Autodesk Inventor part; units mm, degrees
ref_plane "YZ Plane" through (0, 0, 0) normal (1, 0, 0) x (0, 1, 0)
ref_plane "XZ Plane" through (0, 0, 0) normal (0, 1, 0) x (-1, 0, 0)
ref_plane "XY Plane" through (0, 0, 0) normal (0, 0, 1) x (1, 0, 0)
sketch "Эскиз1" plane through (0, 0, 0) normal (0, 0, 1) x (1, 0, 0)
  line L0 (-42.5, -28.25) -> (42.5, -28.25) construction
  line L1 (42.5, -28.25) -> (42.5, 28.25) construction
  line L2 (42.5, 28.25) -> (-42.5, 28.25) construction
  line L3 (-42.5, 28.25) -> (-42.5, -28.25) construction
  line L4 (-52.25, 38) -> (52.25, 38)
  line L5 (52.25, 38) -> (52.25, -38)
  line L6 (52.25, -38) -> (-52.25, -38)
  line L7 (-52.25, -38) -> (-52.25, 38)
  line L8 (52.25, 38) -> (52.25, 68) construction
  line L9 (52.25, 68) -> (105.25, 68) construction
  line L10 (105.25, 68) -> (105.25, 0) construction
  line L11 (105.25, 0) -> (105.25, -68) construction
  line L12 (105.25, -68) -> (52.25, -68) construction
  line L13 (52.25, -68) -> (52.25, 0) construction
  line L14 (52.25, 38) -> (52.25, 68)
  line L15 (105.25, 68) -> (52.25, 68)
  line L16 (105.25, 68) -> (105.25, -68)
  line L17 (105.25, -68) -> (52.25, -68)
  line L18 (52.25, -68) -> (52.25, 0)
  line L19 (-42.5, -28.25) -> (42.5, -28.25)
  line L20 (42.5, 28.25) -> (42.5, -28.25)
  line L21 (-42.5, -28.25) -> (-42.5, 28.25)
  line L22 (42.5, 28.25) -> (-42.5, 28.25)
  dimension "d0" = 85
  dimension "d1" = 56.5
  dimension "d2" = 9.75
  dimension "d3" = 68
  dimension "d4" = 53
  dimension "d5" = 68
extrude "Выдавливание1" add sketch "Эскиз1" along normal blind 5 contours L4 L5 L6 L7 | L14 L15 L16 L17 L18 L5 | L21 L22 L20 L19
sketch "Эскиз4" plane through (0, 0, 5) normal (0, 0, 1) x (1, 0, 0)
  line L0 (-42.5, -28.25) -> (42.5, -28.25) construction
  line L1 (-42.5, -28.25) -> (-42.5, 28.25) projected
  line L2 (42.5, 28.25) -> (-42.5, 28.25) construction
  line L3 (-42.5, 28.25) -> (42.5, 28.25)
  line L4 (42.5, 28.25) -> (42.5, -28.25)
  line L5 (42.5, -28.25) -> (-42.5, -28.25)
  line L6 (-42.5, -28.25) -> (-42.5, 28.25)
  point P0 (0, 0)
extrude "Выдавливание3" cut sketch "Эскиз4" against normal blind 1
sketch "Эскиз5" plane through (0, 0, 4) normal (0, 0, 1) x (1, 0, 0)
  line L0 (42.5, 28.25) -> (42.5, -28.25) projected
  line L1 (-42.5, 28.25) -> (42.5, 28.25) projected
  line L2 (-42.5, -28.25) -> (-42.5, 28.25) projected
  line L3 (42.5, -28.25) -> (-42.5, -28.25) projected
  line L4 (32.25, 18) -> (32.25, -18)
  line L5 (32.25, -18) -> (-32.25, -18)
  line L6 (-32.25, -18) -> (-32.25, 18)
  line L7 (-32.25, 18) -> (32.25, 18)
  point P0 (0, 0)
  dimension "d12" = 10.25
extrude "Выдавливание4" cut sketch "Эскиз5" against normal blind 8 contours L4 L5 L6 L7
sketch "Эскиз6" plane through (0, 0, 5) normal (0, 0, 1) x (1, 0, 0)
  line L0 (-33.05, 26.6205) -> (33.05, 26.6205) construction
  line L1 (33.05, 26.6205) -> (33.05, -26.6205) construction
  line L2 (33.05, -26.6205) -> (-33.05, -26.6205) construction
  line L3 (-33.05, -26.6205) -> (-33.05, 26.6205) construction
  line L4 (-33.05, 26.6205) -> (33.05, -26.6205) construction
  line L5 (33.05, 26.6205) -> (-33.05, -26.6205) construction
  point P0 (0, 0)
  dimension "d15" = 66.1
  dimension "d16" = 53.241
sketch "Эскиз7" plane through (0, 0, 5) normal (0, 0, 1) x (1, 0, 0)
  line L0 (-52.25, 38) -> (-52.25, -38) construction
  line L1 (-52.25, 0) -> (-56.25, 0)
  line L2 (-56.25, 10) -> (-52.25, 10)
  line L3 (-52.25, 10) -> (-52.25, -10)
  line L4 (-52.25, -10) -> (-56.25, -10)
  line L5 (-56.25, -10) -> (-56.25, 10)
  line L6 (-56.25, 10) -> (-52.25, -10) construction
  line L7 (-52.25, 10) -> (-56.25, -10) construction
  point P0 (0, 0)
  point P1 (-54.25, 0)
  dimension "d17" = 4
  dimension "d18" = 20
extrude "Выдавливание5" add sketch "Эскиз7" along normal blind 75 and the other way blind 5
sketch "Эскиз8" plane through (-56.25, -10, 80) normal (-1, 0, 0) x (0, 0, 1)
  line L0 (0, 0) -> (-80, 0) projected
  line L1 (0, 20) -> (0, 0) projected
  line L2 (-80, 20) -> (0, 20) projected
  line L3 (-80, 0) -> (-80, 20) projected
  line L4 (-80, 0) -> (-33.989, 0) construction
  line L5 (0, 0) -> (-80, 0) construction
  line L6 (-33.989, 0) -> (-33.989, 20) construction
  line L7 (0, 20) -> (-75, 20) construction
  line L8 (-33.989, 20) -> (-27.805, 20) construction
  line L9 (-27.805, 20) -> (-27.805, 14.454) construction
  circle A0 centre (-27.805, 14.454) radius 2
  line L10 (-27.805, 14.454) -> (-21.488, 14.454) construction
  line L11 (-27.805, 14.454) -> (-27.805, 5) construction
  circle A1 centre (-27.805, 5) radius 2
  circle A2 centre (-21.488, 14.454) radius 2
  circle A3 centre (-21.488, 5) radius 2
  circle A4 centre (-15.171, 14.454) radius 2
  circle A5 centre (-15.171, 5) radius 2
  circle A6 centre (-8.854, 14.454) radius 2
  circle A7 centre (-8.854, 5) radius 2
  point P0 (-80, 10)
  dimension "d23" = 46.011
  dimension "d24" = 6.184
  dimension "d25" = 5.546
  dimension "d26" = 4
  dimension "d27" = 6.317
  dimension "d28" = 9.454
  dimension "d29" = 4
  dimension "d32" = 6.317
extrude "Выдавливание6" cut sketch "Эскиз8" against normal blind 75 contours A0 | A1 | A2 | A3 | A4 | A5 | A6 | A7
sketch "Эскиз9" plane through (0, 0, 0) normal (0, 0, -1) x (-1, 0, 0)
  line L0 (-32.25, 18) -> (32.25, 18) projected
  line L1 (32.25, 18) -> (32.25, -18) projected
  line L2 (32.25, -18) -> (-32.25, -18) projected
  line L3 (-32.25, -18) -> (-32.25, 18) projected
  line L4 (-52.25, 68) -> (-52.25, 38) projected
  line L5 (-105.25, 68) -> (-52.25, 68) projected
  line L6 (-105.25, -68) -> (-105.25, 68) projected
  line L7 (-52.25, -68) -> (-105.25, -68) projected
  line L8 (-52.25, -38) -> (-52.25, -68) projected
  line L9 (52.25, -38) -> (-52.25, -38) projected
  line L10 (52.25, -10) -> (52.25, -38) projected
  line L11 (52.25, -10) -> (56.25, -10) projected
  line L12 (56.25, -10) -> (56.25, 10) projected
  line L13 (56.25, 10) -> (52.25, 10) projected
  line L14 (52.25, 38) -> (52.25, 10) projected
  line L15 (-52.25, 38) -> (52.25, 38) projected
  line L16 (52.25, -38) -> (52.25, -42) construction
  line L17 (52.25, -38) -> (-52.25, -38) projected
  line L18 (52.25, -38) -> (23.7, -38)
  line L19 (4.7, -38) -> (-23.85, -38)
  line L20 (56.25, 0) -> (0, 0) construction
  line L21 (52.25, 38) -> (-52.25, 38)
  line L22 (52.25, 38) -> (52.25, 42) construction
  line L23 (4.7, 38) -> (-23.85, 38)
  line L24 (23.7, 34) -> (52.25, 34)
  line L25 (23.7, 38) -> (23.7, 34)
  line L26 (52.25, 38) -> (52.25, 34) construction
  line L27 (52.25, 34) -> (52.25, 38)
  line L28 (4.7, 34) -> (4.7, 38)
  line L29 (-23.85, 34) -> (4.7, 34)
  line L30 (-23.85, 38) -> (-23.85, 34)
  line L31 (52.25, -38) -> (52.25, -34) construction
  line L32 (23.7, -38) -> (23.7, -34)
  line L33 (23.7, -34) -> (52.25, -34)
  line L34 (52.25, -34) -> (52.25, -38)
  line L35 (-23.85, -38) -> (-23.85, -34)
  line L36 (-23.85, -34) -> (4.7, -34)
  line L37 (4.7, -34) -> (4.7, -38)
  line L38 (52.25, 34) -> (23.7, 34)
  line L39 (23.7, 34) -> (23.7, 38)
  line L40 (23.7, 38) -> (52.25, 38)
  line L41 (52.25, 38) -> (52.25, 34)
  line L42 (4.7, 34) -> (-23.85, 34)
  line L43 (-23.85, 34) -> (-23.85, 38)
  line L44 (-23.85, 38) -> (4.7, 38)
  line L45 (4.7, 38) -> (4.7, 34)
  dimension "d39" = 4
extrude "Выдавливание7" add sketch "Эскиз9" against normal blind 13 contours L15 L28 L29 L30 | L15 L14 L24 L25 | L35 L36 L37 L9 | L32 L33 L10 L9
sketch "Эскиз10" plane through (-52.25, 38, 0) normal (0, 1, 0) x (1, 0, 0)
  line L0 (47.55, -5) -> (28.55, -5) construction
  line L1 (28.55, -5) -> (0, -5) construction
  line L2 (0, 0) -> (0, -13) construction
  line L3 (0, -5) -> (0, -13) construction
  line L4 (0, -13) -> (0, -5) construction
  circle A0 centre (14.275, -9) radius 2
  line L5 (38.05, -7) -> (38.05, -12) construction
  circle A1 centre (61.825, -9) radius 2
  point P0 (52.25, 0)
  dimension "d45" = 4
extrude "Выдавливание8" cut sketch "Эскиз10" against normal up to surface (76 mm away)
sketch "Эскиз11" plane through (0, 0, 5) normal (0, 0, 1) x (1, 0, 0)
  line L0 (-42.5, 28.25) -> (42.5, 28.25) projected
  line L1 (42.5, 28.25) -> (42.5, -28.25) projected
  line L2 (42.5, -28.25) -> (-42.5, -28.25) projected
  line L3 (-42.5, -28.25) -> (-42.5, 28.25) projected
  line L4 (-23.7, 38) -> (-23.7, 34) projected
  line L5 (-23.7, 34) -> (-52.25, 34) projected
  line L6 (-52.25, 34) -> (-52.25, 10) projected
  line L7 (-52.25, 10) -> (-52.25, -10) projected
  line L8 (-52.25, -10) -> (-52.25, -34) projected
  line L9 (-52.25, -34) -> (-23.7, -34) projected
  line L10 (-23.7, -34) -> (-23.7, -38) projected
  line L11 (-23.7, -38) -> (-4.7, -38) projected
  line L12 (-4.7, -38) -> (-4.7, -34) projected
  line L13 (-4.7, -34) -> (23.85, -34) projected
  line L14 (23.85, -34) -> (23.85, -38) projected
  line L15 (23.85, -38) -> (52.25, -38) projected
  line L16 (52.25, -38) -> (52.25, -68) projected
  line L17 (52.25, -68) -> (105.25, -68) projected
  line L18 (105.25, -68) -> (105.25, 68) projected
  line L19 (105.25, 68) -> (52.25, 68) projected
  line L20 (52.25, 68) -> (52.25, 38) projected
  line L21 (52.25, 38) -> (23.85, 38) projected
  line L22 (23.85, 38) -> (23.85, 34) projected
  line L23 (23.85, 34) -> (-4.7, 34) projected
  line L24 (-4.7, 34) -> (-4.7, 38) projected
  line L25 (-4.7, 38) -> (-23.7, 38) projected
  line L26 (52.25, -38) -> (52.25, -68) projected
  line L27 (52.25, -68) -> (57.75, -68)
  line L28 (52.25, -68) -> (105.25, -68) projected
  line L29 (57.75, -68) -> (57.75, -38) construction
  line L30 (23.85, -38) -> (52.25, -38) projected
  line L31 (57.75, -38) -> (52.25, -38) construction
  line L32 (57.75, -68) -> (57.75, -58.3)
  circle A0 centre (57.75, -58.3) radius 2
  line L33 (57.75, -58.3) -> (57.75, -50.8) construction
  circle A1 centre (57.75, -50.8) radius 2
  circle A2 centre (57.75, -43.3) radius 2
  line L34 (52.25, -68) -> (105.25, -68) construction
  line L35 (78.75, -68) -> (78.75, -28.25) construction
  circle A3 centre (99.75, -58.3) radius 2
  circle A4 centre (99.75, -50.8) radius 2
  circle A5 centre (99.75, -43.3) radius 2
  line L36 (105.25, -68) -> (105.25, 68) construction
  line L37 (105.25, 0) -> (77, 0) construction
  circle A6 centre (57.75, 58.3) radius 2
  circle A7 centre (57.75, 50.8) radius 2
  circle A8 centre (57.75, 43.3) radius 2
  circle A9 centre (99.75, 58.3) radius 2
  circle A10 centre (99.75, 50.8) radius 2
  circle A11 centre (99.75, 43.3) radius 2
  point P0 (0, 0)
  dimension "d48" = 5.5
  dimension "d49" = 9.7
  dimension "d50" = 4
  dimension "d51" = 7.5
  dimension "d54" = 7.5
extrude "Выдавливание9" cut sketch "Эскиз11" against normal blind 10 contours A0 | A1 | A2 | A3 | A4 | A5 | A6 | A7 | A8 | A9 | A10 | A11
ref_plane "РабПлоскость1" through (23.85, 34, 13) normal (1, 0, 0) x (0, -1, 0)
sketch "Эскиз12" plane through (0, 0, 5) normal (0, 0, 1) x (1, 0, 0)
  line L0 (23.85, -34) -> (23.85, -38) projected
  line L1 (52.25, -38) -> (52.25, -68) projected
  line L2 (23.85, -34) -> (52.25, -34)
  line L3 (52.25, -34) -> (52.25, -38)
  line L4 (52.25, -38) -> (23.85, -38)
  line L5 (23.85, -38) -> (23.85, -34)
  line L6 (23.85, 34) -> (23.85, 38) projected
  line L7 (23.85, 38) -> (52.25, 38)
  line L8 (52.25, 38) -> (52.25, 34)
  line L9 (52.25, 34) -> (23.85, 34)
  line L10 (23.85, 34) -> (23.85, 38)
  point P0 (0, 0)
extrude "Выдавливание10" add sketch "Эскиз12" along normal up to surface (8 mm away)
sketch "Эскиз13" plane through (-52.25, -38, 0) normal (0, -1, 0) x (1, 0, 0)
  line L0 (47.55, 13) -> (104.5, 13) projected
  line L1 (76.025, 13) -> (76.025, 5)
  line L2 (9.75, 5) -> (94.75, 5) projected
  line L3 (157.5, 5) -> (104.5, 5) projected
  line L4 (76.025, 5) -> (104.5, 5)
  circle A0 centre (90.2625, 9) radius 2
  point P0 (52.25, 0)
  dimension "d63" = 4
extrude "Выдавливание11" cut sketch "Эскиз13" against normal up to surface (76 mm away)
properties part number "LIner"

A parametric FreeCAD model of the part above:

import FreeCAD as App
import Part
import Sketcher

doc = App.newDocument("Part")
body = doc.addObject("PartDesign::Body", "Body")

# Sketch on XY plane
sketch1 = doc.addObject("Sketcher::SketchObject", "Sketch")
body.addObject(sketch1)
sketch1.AttachmentSupport = (doc.XY_Plane, [""])
sketch1.MapMode = "FlatFace"
sketch1.addGeometry([
    Part.LineSegment(App.Vector(52, 38, 0), App.Vector(-52, 38, 0)),  # 0
    Part.LineSegment(App.Vector(-52, 38, 0), App.Vector(-52, -38, 0)),  # 1
    Part.LineSegment(App.Vector(-52, -38, 0), App.Vector(52, -38, 0)),  # 2
    Part.LineSegment(App.Vector(52, -38, 0), App.Vector(52, -68, 0)),  # 3
    Part.LineSegment(App.Vector(52, -68, 0), App.Vector(105, -68, 0)),  # 4
    Part.LineSegment(App.Vector(105, -68, 0), App.Vector(105, 68, 0)),  # 5
    Part.LineSegment(App.Vector(105, 68, 0), App.Vector(52, 68, 0)),  # 6
    Part.LineSegment(App.Vector(52, 68, 0), App.Vector(52, 38, 0)),  # 7
], False)
sketch1.addConstraint([
    Sketcher.Constraint("Coincident", 0, 2, 1, 1),
    Sketcher.Constraint("Coincident", 1, 2, 2, 1),
    Sketcher.Constraint("Coincident", 2, 2, 3, 1),
    Sketcher.Constraint("Coincident", 3, 2, 4, 1),
    Sketcher.Constraint("Coincident", 4, 2, 5, 1),
    Sketcher.Constraint("Coincident", 5, 2, 6, 1),
    Sketcher.Constraint("Coincident", 6, 2, 7, 1),
    Sketcher.Constraint("Coincident", 7, 2, 0, 1),
    Sketcher.Constraint("Horizontal", 0),
    Sketcher.Constraint("Vertical", 1),
    Sketcher.Constraint("Horizontal", 2),
    Sketcher.Constraint("Vertical", 3),
    Sketcher.Constraint("Horizontal", 4),
    Sketcher.Constraint("Vertical", 5),
    Sketcher.Constraint("Horizontal", 6),
    Sketcher.Constraint("Vertical", 7),
    Sketcher.Constraint("Symmetric", 0, 2, 2, 2, -1, 1),
    Sketcher.Constraint("Symmetric", 3, 2, 6, 2, -1),
    Sketcher.Constraint("DistanceX", 4, 1, 4, 2, 53.0),
    Sketcher.Constraint("DistanceY", 3, 2, -1, 1, 68.0),
    Sketcher.Constraint("DistanceY", 1, 2, 1, 1, 76.0),
    Sketcher.Constraint("DistanceX", 0, 2, 0, 1, 104.5),
])
pad1 = doc.addObject("PartDesign::Pad", "Pad")
body.addObject(pad1)
pad1.Profile = sketch1
pad1.Length = 5

# Sketch on XY plane
sketch2 = doc.addObject("Sketcher::SketchObject", "Sketch001")
body.addObject(sketch2)
sketch2.AttachmentSupport = (doc.XY_Plane, [""])
sketch2.MapMode = "FlatFace"
sketch2.AttachmentOffset = App.Placement(App.Vector(0, 0, 5), App.Rotation())
sketch2.addGeometry([
    Part.LineSegment(App.Vector(-42, 28, 0), App.Vector(-42, -28, 0)),
    Part.LineSegment(App.Vector(-42, -28, 0), App.Vector(42, -28, 0)),
    Part.LineSegment(App.Vector(42, -28, 0), App.Vector(42, 28, 0)),
    Part.LineSegment(App.Vector(42, 28, 0), App.Vector(-42, 28, 0)),
], False)
sketch2.addConstraint([
    Sketcher.Constraint("Coincident", 0, 2, 1, 1),
    Sketcher.Constraint("Coincident", 1, 2, 2, 1),
    Sketcher.Constraint("Coincident", 2, 2, 3, 1),
    Sketcher.Constraint("Coincident", 3, 2, 0, 1),
    Sketcher.Constraint("Vertical", 0),
    Sketcher.Constraint("Horizontal", 1),
    Sketcher.Constraint("Vertical", 2),
    Sketcher.Constraint("Horizontal", 3),
    Sketcher.Constraint("Symmetric", 0, 2, 2, 2, -1, 1),
    Sketcher.Constraint("DistanceX", 1, 1, 1, 2, 85.0),
    Sketcher.Constraint("DistanceY", 0, 2, 0, 1, 56.5),
])
pocket1 = doc.addObject("PartDesign::Pocket", "Pocket")
body.addObject(pocket1)
pocket1.Profile = sketch2
pocket1.Length = 1

# Sketch on XY plane
sketch3 = doc.addObject("Sketcher::SketchObject", "Sketch002")
body.addObject(sketch3)
sketch3.AttachmentSupport = (doc.XY_Plane, [""])
sketch3.MapMode = "FlatFace"
sketch3.AttachmentOffset = App.Placement(App.Vector(0, 0, 4), App.Rotation())
sketch3.addGeometry([
    Part.LineSegment(App.Vector(32, -18, 0), App.Vector(32, 18, 0)),
    Part.LineSegment(App.Vector(32, 18, 0), App.Vector(-32, 18, 0)),
    Part.LineSegment(App.Vector(-32, 18, 0), App.Vector(-32, -18, 0)),
    Part.LineSegment(App.Vector(-32, -18, 0), App.Vector(32, -18, 0)),
], False)
sketch3.addConstraint([
    Sketcher.Constraint("Coincident", 0, 2, 1, 1),
    Sketcher.Constraint("Coincident", 1, 2, 2, 1),
    Sketcher.Constraint("Coincident", 2, 2, 3, 1),
    Sketcher.Constraint("Coincident", 3, 2, 0, 1),
    Sketcher.Constraint("Vertical", 0),
    Sketcher.Constraint("Horizontal", 1),
    Sketcher.Constraint("Vertical", 2),
    Sketcher.Constraint("Horizontal", 3),
    Sketcher.Constraint("Symmetric", 0, 2, 2, 2, -1, 1),
    Sketcher.Constraint("DistanceY", 0, 1, 0, 2, 36.0),
    Sketcher.Constraint("DistanceX", 1, 2, 1, 1, 64.5),
])
pocket2 = doc.addObject("PartDesign::Pocket", "Pocket001")
body.addObject(pocket2)
pocket2.Profile = sketch3
pocket2.Length = 8

# Sketch on XY plane
sketch4 = doc.addObject("Sketcher::SketchObject", "Sketch003")
body.addObject(sketch4)
sketch4.AttachmentSupport = (doc.XY_Plane, [""])
sketch4.MapMode = "FlatFace"
sketch4.AttachmentOffset = App.Placement(App.Vector(0, 0, 5), App.Rotation())
sketch4.addGeometry([
    Part.LineSegment(App.Vector(-52.2, -10, 0), App.Vector(-52.2, 10, 0)),
    Part.LineSegment(App.Vector(-52.2, 10, 0), App.Vector(-56.2, 10, 0)),
    Part.LineSegment(App.Vector(-56.2, 10, 0), App.Vector(-56.2, -10, 0)),
    Part.LineSegment(App.Vector(-56.2, -10, 0), App.Vector(-52.2, -10, 0)),
], False)
sketch4.addConstraint([
    Sketcher.Constraint("Coincident", 0, 2, 1, 1),
    Sketcher.Constraint("Coincident", 1, 2, 2, 1),
    Sketcher.Constraint("Coincident", 2, 2, 3, 1),
    Sketcher.Constraint("Coincident", 3, 2, 0, 1),
    Sketcher.Constraint("Vertical", 0),
    Sketcher.Constraint("Horizontal", 1),
    Sketcher.Constraint("Vertical", 2),
    Sketcher.Constraint("Horizontal", 3),
    Sketcher.Constraint("DistanceX", 1, 2, 1, 1, 4.0),
    Sketcher.Constraint("DistanceY", 0, 1, 0, 2, 20.0),
    Sketcher.Constraint("DistanceY", -1, 1, 0, 2, 10.0),
    Sketcher.Constraint("DistanceX", 0, 2, -1, 1, 52.25),
])
pad2 = doc.addObject("PartDesign::Pad", "Pad001")
body.addObject(pad2)
pad2.Profile = sketch4
pad2.Type = "TwoLengths"
pad2.Length = 75
pad2.Length2 = 5

# Sketch on YZ plane
sketch5 = doc.addObject("Sketcher::SketchObject", "Sketch004")
body.addObject(sketch5)
sketch5.AttachmentSupport = (doc.YZ_Plane, [""])
sketch5.MapMode = "FlatFace"
sketch5.AttachmentOffset = App.Placement(App.Vector(0, 0, -56.25), App.Rotation())
sketch5.addGeometry([
    Part.Circle(App.Vector(4.5, 52.2, 0), App.Vector(0, 0, 1), 2),  # 0
    Part.Circle(App.Vector(-5, 52.2, 0), App.Vector(0, 0, 1), 2),  # 1
    Part.Circle(App.Vector(4.5, 58.5, 0), App.Vector(0, 0, 1), 2),  # 2
    Part.Circle(App.Vector(-5, 58.5, 0), App.Vector(0, 0, 1), 2),  # 3
    Part.Circle(App.Vector(4.5, 64.8, 0), App.Vector(0, 0, 1), 2),  # 4
    Part.Circle(App.Vector(-5, 64.8, 0), App.Vector(0, 0, 1), 2),  # 5
    Part.Circle(App.Vector(4.5, 71.1, 0), App.Vector(0, 0, 1), 2),  # 6
    Part.Circle(App.Vector(-5, 71.1, 0), App.Vector(0, 0, 1), 2),  # 7
], False)
sketch5.addConstraint([
    Sketcher.Constraint("Equal", 0, 1),
    Sketcher.Constraint("Equal", 1, 2),
    Sketcher.Constraint("Equal", 2, 3),
    Sketcher.Constraint("Equal", 3, 4),
    Sketcher.Constraint("Equal", 4, 5),
    Sketcher.Constraint("Equal", 5, 6),
    Sketcher.Constraint("Equal", 6, 7),
    Sketcher.Constraint("Horizontal", 0, 3, 1, 3),
    Sketcher.Constraint("Horizontal", 2, 3, 3, 3),
    Sketcher.Constraint("Horizontal", 4, 3, 5, 3),
    Sketcher.Constraint("Horizontal", 6, 3, 7, 3),
    Sketcher.Constraint("Vertical", 0, 3, 2, 3),
    Sketcher.Constraint("Vertical", 1, 3, 3, 3),
    Sketcher.Constraint("Vertical", 2, 3, 4, 3),
    Sketcher.Constraint("Vertical", 3, 3, 5, 3),
    Sketcher.Constraint("Vertical", 4, 3, 6, 3),
    Sketcher.Constraint("Vertical", 5, 3, 7, 3),
    Sketcher.Constraint("Diameter", 0, 4.0),
    Sketcher.Constraint("DistanceX", 1, 3, -1, 1, 5.0),
    Sketcher.Constraint("DistanceX", 1, 3, 0, 3, 9.454),
    Sketcher.Constraint("DistanceY", 0, 3, 2, 3, 6.317),
    Sketcher.Constraint("DistanceY", 2, 3, 4, 3, 6.317),
    Sketcher.Constraint("DistanceY", 4, 3, 6, 3, 6.317),
    Sketcher.Constraint("DistanceY", -1, 1, 0, 3, 52.195),
])
pocket3 = doc.addObject("PartDesign::Pocket", "Pocket002")
body.addObject(pocket3)
pocket3.Profile = sketch5
pocket3.Length = 75
pocket3.Reversed = True

# Sketch on XY plane
sketch6 = doc.addObject("Sketcher::SketchObject", "Sketch005")
body.addObject(sketch6)
sketch6.AttachmentSupport = (doc.XY_Plane, [""])
sketch6.MapMode = "FlatFace"
sketch6.addGeometry([
    Part.LineSegment(App.Vector(-4.7, 38, 0), App.Vector(23.9, 38, 0)),  # 0
    Part.LineSegment(App.Vector(23.9, 38, 0), App.Vector(23.9, 34, 0)),  # 1
    Part.LineSegment(App.Vector(23.9, 34, 0), App.Vector(-4.7, 34, 0)),  # 2
    Part.LineSegment(App.Vector(-4.7, 34, 0), App.Vector(-4.7, 38, 0)),  # 3
    Part.LineSegment(App.Vector(-52.2, 38, 0), App.Vector(-23.7, 38, 0)),  # 4
    Part.LineSegment(App.Vector(-23.7, 38, 0), App.Vector(-23.7, 34, 0)),  # 5
    Part.LineSegment(App.Vector(-23.7, 34, 0), App.Vector(-52.2, 34, 0)),  # 6
    Part.LineSegment(App.Vector(-52.2, 34, 0), App.Vector(-52.2, 38, 0)),  # 7
    Part.LineSegment(App.Vector(23.9, -34, 0), App.Vector(23.9, -38, 0)),  # 8
    Part.LineSegment(App.Vector(23.9, -38, 0), App.Vector(-4.7, -38, 0)),  # 9
    Part.LineSegment(App.Vector(-4.7, -38, 0), App.Vector(-4.7, -34, 0)),  # 10
    Part.LineSegment(App.Vector(-4.7, -34, 0), App.Vector(23.9, -34, 0)),  # 11
    Part.LineSegment(App.Vector(-23.7, -34, 0), App.Vector(-23.7, -38, 0)),  # 12
    Part.LineSegment(App.Vector(-23.7, -38, 0), App.Vector(-52.2, -38, 0)),  # 13
    Part.LineSegment(App.Vector(-52.2, -38, 0), App.Vector(-52.2, -34, 0)),  # 14
    Part.LineSegment(App.Vector(-52.2, -34, 0), App.Vector(-23.7, -34, 0)),  # 15
], False)
sketch6.addConstraint([
    Sketcher.Constraint("Coincident", 0, 2, 1, 1),
    Sketcher.Constraint("Coincident", 1, 2, 2, 1),
    Sketcher.Constraint("Coincident", 2, 2, 3, 1),
    Sketcher.Constraint("Coincident", 3, 2, 0, 1),
    Sketcher.Constraint("Coincident", 4, 2, 5, 1),
    Sketcher.Constraint("Coincident", 5, 2, 6, 1),
    Sketcher.Constraint("Coincident", 6, 2, 7, 1),
    Sketcher.Constraint("Coincident", 7, 2, 4, 1),
    Sketcher.Constraint("Coincident", 8, 2, 9, 1),
    Sketcher.Constraint("Coincident", 9, 2, 10, 1),
    Sketcher.Constraint("Coincident", 10, 2, 11, 1),
    Sketcher.Constraint("Coincident", 11, 2, 8, 1),
    Sketcher.Constraint("Coincident", 12, 2, 13, 1),
    Sketcher.Constraint("Coincident", 13, 2, 14, 1),
    Sketcher.Constraint("Coincident", 14, 2, 15, 1),
    Sketcher.Constraint("Coincident", 15, 2, 12, 1),
    Sketcher.Constraint("Horizontal", 0),
    Sketcher.Constraint("Vertical", 1),
    Sketcher.Constraint("Horizontal", 2),
    Sketcher.Constraint("Vertical", 3),
    Sketcher.Constraint("Horizontal", 4),
    Sketcher.Constraint("Vertical", 5),
    Sketcher.Constraint("Horizontal", 6),
    Sketcher.Constraint("Vertical", 7),
    Sketcher.Constraint("Vertical", 8),
    Sketcher.Constraint("Horizontal", 9),
    Sketcher.Constraint("Vertical", 10),
    Sketcher.Constraint("Horizontal", 11),
    Sketcher.Constraint("Vertical", 12),
    Sketcher.Constraint("Horizontal", 13),
    Sketcher.Constraint("Vertical", 14),
    Sketcher.Constraint("Horizontal", 15),
    Sketcher.Constraint("Symmetric", 0, 2, 8, 2, -1),
    Sketcher.Constraint("Symmetric", 2, 2, 10, 2, -1),
    Sketcher.Constraint("Symmetric", 4, 2, 12, 2, -1),
    Sketcher.Constraint("Symmetric", 6, 2, 14, 2, -1),
    Sketcher.Constraint("Horizontal", 3, 2, 4, 2),
    Sketcher.Constraint("Horizontal", 2, 2, 5, 2),
    Sketcher.Constraint("Equal", 2, 4),
    Sketcher.Constraint("DistanceY", 1, 2, 1, 1, 4.0),
    Sketcher.Constraint("DistanceY", -1, 1, 0, 2, 38.0),
    Sketcher.Constraint("DistanceX", 4, 2, 3, 2, 19.0),
    Sketcher.Constraint("DistanceX", 0, 1, 0, 2, 28.55),
    Sketcher.Constraint("DistanceX", 2, 2, -1, 1, 4.7),
])
pad3 = doc.addObject("PartDesign::Pad", "Pad002")
body.addObject(pad3)
pad3.Profile = sketch6
pad3.Length = 13

# Sketch on XZ plane
sketch7 = doc.addObject("Sketcher::SketchObject", "Sketch006")
body.addObject(sketch7)
sketch7.AttachmentSupport = (doc.XZ_Plane, [""])
sketch7.MapMode = "FlatFace"
sketch7.AttachmentOffset = App.Placement(App.Vector(0, 0, -38), App.Rotation())
sketch7.addGeometry([
    Part.Circle(App.Vector(-38, 9, 0), App.Vector(0, 0, 1), 2),
    Part.Circle(App.Vector(9.6, 9, 0), App.Vector(0, 0, 1), 2),
], False)
sketch7.addConstraint([
    Sketcher.Constraint("Equal", 0, 1),
    Sketcher.Constraint("Horizontal", 0, 3, 1, 3),
    Sketcher.Constraint("Diameter", 0, 4.0),
    Sketcher.Constraint("DistanceY", -1, 1, 0, 3, 9.0),
    Sketcher.Constraint("DistanceX", 0, 3, 1, 3, 47.55),
    Sketcher.Constraint("DistanceX", 0, 3, -1, 1, 37.975),
])
pocket4 = doc.addObject("PartDesign::Pocket", "Pocket003")
body.addObject(pocket4)
pocket4.Profile = sketch7
pocket4.Length = 76
pocket4.Reversed = True

# Sketch on XY plane
sketch8 = doc.addObject("Sketcher::SketchObject", "Sketch007")
body.addObject(sketch8)
sketch8.AttachmentSupport = (doc.XY_Plane, [""])
sketch8.MapMode = "FlatFace"
sketch8.AttachmentOffset = App.Placement(App.Vector(0, 0, 5), App.Rotation())
sketch8.addGeometry([
    Part.Circle(App.Vector(57.8, -58.3, 0), App.Vector(0, 0, 1), 2),  # 0
    Part.Circle(App.Vector(57.8, -50.8, 0), App.Vector(0, 0, 1), 2),  # 1
    Part.Circle(App.Vector(57.8, -43.3, 0), App.Vector(0, 0, 1), 2),  # 2
    Part.Circle(App.Vector(99.8, -58.3, 0), App.Vector(0, 0, 1), 2),  # 3
    Part.Circle(App.Vector(99.8, -50.8, 0), App.Vector(0, 0, 1), 2),  # 4
    Part.Circle(App.Vector(99.8, -43.3, 0), App.Vector(0, 0, 1), 2),  # 5
    Part.Circle(App.Vector(57.8, 58.3, 0), App.Vector(0, 0, 1), 2),  # 6
    Part.Circle(App.Vector(57.8, 50.8, 0), App.Vector(0, 0, 1), 2),  # 7
    Part.Circle(App.Vector(57.8, 43.3, 0), App.Vector(0, 0, 1), 2),  # 8
    Part.Circle(App.Vector(99.8, 58.3, 0), App.Vector(0, 0, 1), 2),  # 9
    Part.Circle(App.Vector(99.8, 50.8, 0), App.Vector(0, 0, 1), 2),  # 10
    Part.Circle(App.Vector(99.8, 43.3, 0), App.Vector(0, 0, 1), 2),  # 11
], False)
sketch8.addConstraint([
    Sketcher.Constraint("Equal", 0, 1),
    Sketcher.Constraint("Equal", 1, 2),
    Sketcher.Constraint("Equal", 2, 3),
    Sketcher.Constraint("Equal", 3, 4),
    Sketcher.Constraint("Equal", 4, 5),
    Sketcher.Constraint("Equal", 5, 6),
    Sketcher.Constraint("Equal", 6, 7),
    Sketcher.Constraint("Equal", 7, 8),
    Sketcher.Constraint("Equal", 8, 9),
    Sketcher.Constraint("Equal", 9, 10),
    Sketcher.Constraint("Equal", 10, 11),
    Sketcher.Constraint("Symmetric", 0, 3, 6, 3, -1),
    Sketcher.Constraint("Symmetric", 1, 3, 7, 3, -1),
    Sketcher.Constraint("Symmetric", 2, 3, 8, 3, -1),
    Sketcher.Constraint("Symmetric", 3, 3, 9, 3, -1),
    Sketcher.Constraint("Symmetric", 4, 3, 10, 3, -1),
    Sketcher.Constraint("Symmetric", 5, 3, 11, 3, -1),
    Sketcher.Constraint("Horizontal", 0, 3, 3, 3),
    Sketcher.Constraint("Horizontal", 1, 3, 4, 3),
    Sketcher.Constraint("Horizontal", 2, 3, 5, 3),
    Sketcher.Constraint("Vertical", 0, 3, 1, 3),
    Sketcher.Constraint("Vertical", 1, 3, 2, 3),
    Sketcher.Constraint("Vertical", 3, 3, 4, 3),
    Sketcher.Constraint("Vertical", 4, 3, 5, 3),
    Sketcher.Constraint("Diameter", 0, 4.0),
    Sketcher.Constraint("DistanceY", 0, 3, 1, 3, 7.5),
    Sketcher.Constraint("DistanceY", 1, 3, 2, 3, 7.5),
    Sketcher.Constraint("DistanceX", 0, 3, 3, 3, 42.0),
    Sketcher.Constraint("DistanceY", 0, 3, -1, 1, 58.3),
    Sketcher.Constraint("DistanceX", -1, 1, 0, 3, 57.75),
])
pocket5 = doc.addObject("PartDesign::Pocket", "Pocket004")
body.addObject(pocket5)
pocket5.Profile = sketch8
pocket5.Length = 10

# Sketch on XY plane
sketch9 = doc.addObject("Sketcher::SketchObject", "Sketch008")
body.addObject(sketch9)
sketch9.AttachmentSupport = (doc.XY_Plane, [""])
sketch9.MapMode = "FlatFace"
sketch9.AttachmentOffset = App.Placement(App.Vector(0, 0, 5), App.Rotation())
sketch9.addGeometry([
    Part.LineSegment(App.Vector(52.2, -34, 0), App.Vector(23.9, -34, 0)),  # 0
    Part.LineSegment(App.Vector(23.9, -34, 0), App.Vector(23.9, -38, 0)),  # 1
    Part.LineSegment(App.Vector(23.9, -38, 0), App.Vector(52.2, -38, 0)),  # 2
    Part.LineSegment(App.Vector(52.2, -38, 0), App.Vector(52.2, -34, 0)),  # 3
    Part.LineSegment(App.Vector(23.9, 38, 0), App.Vector(23.9, 34, 0)),  # 4
    Part.LineSegment(App.Vector(23.9, 34, 0), App.Vector(52.2, 34, 0)),  # 5
    Part.LineSegment(App.Vector(52.2, 34, 0), App.Vector(52.2, 38, 0)),  # 6
    Part.LineSegment(App.Vector(52.2, 38, 0), App.Vector(23.9, 38, 0)),  # 7
], False)
sketch9.addConstraint([
    Sketcher.Constraint("Coincident", 0, 2, 1, 1),
    Sketcher.Constraint("Coincident", 1, 2, 2, 1),
    Sketcher.Constraint("Coincident", 2, 2, 3, 1),
    Sketcher.Constraint("Coincident", 3, 2, 0, 1),
    Sketcher.Constraint("Coincident", 4, 2, 5, 1),
    Sketcher.Constraint("Coincident", 5, 2, 6, 1),
    Sketcher.Constraint("Coincident", 6, 2, 7, 1),
    Sketcher.Constraint("Coincident", 7, 2, 4, 1),
    Sketcher.Constraint("Horizontal", 0),
    Sketcher.Constraint("Vertical", 1),
    Sketcher.Constraint("Horizontal", 2),
    Sketcher.Constraint("Vertical", 3),
    Sketcher.Constraint("Vertical", 4),
    Sketcher.Constraint("Horizontal", 5),
    Sketcher.Constraint("Vertical", 6),
    Sketcher.Constraint("Horizontal", 7),
    Sketcher.Constraint("Symmetric", 0, 2, 4, 2, -1),
    Sketcher.Constraint("Symmetric", 2, 2, 6, 2, -1),
    Sketcher.Constraint("DistanceY", 1, 2, 1, 1, 4.0),
    Sketcher.Constraint("DistanceX", 0, 2, 0, 1, 28.4),
    Sketcher.Constraint("DistanceY", 0, 2, -1, 1, 34.0),
    Sketcher.Constraint("DistanceX", -1, 1, 0, 2, 23.85),
])
pad4 = doc.addObject("PartDesign::Pad", "Pad003")
body.addObject(pad4)
pad4.Profile = sketch9
pad4.Length = 8

# Sketch on XZ plane
sketch10 = doc.addObject("Sketcher::SketchObject", "Sketch009")
body.addObject(sketch10)
sketch10.AttachmentSupport = (doc.XZ_Plane, [""])
sketch10.MapMode = "FlatFace"
sketch10.AttachmentOffset = App.Placement(App.Vector(0, 0, 38), App.Rotation())
sketch10.addGeometry(Part.Circle(App.Vector(38, 9, 0), App.Vector(0, 0, 1), 2), False)
sketch10.addConstraint([
    Sketcher.Constraint("Diameter", 0, 4.0),
    Sketcher.Constraint("DistanceY", -1, 1, 0, 3, 9.0),
    Sketcher.Constraint("DistanceX", -1, 1, 0, 3, 38.0125),
])
pocket6 = doc.addObject("PartDesign::Pocket", "Pocket005")
body.addObject(pocket6)
pocket6.Profile = sketch10
pocket6.Length = 76

doc.recompute()
